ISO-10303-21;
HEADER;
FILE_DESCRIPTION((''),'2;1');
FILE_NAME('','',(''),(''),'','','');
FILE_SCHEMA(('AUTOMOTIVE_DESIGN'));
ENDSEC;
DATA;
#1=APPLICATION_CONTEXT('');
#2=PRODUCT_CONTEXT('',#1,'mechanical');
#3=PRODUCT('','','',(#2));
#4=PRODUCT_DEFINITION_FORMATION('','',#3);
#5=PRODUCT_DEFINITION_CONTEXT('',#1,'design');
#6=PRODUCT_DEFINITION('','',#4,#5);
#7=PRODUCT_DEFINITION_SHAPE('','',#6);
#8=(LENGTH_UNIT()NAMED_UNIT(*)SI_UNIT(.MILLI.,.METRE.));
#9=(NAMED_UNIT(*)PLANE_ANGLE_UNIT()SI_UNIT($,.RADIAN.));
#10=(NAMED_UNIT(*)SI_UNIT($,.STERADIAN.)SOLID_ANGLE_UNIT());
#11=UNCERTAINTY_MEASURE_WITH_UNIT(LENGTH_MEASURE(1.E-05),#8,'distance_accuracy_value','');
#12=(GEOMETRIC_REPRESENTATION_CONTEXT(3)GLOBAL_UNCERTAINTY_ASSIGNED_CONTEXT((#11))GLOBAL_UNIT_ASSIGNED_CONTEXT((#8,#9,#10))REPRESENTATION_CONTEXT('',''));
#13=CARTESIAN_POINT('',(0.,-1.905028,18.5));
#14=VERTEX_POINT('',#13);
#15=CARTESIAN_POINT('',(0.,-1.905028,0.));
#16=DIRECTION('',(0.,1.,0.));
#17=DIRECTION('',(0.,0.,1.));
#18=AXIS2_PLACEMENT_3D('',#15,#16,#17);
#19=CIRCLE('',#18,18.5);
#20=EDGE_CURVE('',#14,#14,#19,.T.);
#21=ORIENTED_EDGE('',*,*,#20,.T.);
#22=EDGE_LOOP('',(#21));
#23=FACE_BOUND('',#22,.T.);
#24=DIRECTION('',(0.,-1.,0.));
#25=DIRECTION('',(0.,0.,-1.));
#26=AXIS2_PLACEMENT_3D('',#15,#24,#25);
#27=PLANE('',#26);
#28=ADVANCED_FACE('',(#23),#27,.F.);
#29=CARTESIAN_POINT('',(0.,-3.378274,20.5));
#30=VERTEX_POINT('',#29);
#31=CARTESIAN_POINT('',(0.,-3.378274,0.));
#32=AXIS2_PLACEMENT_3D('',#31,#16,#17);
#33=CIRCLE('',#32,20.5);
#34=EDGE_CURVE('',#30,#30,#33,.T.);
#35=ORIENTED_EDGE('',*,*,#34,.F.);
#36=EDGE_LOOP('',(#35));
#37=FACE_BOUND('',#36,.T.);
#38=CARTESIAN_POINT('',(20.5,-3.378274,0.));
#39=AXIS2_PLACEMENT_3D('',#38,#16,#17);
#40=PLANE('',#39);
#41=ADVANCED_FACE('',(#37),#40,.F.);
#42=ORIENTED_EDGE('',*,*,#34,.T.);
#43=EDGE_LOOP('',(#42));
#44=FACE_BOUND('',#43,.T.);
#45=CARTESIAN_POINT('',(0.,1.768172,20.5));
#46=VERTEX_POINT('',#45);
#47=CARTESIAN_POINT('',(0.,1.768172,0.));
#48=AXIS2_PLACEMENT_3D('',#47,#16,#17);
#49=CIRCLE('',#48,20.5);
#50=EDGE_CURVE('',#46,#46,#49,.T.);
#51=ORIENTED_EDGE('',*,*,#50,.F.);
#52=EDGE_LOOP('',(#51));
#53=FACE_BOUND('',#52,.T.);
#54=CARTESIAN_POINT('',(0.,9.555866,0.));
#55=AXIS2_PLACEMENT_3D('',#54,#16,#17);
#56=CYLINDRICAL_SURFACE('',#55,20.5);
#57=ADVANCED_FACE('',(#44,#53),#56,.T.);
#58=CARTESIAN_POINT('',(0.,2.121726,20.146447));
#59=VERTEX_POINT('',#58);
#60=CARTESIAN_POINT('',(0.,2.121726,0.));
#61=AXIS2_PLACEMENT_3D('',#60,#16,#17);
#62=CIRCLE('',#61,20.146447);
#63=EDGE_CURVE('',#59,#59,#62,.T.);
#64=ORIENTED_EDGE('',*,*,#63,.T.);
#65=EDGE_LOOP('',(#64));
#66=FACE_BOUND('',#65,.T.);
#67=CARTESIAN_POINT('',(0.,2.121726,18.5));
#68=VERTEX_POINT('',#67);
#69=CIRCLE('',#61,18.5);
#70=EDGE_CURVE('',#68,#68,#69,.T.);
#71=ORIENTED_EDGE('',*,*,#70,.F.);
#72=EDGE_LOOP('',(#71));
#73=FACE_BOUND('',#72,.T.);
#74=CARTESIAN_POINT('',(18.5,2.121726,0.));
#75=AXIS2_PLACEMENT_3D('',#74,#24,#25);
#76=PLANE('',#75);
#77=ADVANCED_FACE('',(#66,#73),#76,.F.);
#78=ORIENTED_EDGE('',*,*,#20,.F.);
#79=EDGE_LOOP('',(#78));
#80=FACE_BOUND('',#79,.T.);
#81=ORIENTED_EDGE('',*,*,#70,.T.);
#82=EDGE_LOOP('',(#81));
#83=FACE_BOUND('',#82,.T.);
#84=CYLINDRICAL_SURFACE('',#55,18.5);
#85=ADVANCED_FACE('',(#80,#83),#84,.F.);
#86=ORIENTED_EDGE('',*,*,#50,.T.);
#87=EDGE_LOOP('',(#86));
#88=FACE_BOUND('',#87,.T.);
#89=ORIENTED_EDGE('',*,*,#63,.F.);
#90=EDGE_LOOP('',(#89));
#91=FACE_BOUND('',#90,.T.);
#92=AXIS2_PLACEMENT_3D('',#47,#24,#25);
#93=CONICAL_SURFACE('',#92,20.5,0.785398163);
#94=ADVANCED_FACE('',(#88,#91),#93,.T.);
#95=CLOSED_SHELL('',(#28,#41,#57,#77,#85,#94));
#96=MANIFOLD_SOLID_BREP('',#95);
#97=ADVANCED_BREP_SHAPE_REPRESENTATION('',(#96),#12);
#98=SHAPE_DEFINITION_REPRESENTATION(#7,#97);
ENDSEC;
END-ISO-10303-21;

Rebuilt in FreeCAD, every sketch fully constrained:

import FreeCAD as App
import Part
import Sketcher
from FreeCAD import Vector
Q = App.Units.Quantity

doc = App.newDocument("Part")
body = doc.addObject("PartDesign::Body", "Body")

sketch1 = body.newObject("Sketcher::SketchObject", "Sketch")
sketch1.AttachmentSupport = (doc.getObject("XY_Plane"), [""])
sketch1.MapMode = "FlatFace"
sketch1.addGeometry([
    Part.LineSegment(Vector(18.5, -1.91, 0), Vector(0, -1.91, 0)),
    Part.LineSegment(Vector(0, -1.91, 0), Vector(0, -3.38, 0)),
    Part.LineSegment(Vector(0, -3.38, 0), Vector(20.5, -3.38, 0)),
    Part.LineSegment(Vector(20.5, -3.38, 0), Vector(20.5, 1.77, 0)),
    Part.LineSegment(Vector(20.5, 1.77, 0), Vector(20.15, 2.12, 0)),
    Part.LineSegment(Vector(20.15, 2.12, 0), Vector(18.5, 2.12, 0)),
    Part.LineSegment(Vector(18.5, 2.12, 0), Vector(18.5, -1.91, 0)),
], False)
sketch1.addConstraint([
    Sketcher.Constraint("Coincident", 0, 2, 1, 1),
    Sketcher.Constraint("Coincident", 1, 2, 2, 1),
    Sketcher.Constraint("Coincident", 2, 2, 3, 1),
    Sketcher.Constraint("Coincident", 3, 2, 4, 1),
    Sketcher.Constraint("Coincident", 4, 2, 5, 1),
    Sketcher.Constraint("Coincident", 5, 2, 6, 1),
    Sketcher.Constraint("Coincident", 6, 2, 0, 1),
    Sketcher.Constraint("Horizontal", 0),
    Sketcher.Constraint("Vertical", 1),
    Sketcher.Constraint("Horizontal", 2),
    Sketcher.Constraint("Vertical", 3),
    Sketcher.Constraint("Horizontal", 5),
    Sketcher.Constraint("Vertical", 6),
    Sketcher.Constraint("PointOnObject", 0, 2, -2),
    Sketcher.Constraint("Angle", 4, Q("135 deg")),
    Sketcher.Constraint("DistanceX", 0, 2, 0, 1, Q("18.5 mm")),
    Sketcher.Constraint("DistanceX", 2, 1, 2, 2, Q("20.5 mm")),
    Sketcher.Constraint("Distance", 4, Q("0.5 mm")),
    Sketcher.Constraint("DistanceY", 2, 2, 4, 2, Q("5.5 mm")),
    Sketcher.Constraint("DistanceY", 0, 2, 3, 2, Q("3.6732 mm")),
    Sketcher.Constraint("DistanceY", 0, 2, -1, 1, Q("1.905028 mm")),
])
revolution = body.newObject("PartDesign::Revolution", "Revolution")
revolution.Profile = sketch1
revolution.ReferenceAxis = (sketch1, ["V_Axis"])
revolution.Angle = 360

doc.recompute()
